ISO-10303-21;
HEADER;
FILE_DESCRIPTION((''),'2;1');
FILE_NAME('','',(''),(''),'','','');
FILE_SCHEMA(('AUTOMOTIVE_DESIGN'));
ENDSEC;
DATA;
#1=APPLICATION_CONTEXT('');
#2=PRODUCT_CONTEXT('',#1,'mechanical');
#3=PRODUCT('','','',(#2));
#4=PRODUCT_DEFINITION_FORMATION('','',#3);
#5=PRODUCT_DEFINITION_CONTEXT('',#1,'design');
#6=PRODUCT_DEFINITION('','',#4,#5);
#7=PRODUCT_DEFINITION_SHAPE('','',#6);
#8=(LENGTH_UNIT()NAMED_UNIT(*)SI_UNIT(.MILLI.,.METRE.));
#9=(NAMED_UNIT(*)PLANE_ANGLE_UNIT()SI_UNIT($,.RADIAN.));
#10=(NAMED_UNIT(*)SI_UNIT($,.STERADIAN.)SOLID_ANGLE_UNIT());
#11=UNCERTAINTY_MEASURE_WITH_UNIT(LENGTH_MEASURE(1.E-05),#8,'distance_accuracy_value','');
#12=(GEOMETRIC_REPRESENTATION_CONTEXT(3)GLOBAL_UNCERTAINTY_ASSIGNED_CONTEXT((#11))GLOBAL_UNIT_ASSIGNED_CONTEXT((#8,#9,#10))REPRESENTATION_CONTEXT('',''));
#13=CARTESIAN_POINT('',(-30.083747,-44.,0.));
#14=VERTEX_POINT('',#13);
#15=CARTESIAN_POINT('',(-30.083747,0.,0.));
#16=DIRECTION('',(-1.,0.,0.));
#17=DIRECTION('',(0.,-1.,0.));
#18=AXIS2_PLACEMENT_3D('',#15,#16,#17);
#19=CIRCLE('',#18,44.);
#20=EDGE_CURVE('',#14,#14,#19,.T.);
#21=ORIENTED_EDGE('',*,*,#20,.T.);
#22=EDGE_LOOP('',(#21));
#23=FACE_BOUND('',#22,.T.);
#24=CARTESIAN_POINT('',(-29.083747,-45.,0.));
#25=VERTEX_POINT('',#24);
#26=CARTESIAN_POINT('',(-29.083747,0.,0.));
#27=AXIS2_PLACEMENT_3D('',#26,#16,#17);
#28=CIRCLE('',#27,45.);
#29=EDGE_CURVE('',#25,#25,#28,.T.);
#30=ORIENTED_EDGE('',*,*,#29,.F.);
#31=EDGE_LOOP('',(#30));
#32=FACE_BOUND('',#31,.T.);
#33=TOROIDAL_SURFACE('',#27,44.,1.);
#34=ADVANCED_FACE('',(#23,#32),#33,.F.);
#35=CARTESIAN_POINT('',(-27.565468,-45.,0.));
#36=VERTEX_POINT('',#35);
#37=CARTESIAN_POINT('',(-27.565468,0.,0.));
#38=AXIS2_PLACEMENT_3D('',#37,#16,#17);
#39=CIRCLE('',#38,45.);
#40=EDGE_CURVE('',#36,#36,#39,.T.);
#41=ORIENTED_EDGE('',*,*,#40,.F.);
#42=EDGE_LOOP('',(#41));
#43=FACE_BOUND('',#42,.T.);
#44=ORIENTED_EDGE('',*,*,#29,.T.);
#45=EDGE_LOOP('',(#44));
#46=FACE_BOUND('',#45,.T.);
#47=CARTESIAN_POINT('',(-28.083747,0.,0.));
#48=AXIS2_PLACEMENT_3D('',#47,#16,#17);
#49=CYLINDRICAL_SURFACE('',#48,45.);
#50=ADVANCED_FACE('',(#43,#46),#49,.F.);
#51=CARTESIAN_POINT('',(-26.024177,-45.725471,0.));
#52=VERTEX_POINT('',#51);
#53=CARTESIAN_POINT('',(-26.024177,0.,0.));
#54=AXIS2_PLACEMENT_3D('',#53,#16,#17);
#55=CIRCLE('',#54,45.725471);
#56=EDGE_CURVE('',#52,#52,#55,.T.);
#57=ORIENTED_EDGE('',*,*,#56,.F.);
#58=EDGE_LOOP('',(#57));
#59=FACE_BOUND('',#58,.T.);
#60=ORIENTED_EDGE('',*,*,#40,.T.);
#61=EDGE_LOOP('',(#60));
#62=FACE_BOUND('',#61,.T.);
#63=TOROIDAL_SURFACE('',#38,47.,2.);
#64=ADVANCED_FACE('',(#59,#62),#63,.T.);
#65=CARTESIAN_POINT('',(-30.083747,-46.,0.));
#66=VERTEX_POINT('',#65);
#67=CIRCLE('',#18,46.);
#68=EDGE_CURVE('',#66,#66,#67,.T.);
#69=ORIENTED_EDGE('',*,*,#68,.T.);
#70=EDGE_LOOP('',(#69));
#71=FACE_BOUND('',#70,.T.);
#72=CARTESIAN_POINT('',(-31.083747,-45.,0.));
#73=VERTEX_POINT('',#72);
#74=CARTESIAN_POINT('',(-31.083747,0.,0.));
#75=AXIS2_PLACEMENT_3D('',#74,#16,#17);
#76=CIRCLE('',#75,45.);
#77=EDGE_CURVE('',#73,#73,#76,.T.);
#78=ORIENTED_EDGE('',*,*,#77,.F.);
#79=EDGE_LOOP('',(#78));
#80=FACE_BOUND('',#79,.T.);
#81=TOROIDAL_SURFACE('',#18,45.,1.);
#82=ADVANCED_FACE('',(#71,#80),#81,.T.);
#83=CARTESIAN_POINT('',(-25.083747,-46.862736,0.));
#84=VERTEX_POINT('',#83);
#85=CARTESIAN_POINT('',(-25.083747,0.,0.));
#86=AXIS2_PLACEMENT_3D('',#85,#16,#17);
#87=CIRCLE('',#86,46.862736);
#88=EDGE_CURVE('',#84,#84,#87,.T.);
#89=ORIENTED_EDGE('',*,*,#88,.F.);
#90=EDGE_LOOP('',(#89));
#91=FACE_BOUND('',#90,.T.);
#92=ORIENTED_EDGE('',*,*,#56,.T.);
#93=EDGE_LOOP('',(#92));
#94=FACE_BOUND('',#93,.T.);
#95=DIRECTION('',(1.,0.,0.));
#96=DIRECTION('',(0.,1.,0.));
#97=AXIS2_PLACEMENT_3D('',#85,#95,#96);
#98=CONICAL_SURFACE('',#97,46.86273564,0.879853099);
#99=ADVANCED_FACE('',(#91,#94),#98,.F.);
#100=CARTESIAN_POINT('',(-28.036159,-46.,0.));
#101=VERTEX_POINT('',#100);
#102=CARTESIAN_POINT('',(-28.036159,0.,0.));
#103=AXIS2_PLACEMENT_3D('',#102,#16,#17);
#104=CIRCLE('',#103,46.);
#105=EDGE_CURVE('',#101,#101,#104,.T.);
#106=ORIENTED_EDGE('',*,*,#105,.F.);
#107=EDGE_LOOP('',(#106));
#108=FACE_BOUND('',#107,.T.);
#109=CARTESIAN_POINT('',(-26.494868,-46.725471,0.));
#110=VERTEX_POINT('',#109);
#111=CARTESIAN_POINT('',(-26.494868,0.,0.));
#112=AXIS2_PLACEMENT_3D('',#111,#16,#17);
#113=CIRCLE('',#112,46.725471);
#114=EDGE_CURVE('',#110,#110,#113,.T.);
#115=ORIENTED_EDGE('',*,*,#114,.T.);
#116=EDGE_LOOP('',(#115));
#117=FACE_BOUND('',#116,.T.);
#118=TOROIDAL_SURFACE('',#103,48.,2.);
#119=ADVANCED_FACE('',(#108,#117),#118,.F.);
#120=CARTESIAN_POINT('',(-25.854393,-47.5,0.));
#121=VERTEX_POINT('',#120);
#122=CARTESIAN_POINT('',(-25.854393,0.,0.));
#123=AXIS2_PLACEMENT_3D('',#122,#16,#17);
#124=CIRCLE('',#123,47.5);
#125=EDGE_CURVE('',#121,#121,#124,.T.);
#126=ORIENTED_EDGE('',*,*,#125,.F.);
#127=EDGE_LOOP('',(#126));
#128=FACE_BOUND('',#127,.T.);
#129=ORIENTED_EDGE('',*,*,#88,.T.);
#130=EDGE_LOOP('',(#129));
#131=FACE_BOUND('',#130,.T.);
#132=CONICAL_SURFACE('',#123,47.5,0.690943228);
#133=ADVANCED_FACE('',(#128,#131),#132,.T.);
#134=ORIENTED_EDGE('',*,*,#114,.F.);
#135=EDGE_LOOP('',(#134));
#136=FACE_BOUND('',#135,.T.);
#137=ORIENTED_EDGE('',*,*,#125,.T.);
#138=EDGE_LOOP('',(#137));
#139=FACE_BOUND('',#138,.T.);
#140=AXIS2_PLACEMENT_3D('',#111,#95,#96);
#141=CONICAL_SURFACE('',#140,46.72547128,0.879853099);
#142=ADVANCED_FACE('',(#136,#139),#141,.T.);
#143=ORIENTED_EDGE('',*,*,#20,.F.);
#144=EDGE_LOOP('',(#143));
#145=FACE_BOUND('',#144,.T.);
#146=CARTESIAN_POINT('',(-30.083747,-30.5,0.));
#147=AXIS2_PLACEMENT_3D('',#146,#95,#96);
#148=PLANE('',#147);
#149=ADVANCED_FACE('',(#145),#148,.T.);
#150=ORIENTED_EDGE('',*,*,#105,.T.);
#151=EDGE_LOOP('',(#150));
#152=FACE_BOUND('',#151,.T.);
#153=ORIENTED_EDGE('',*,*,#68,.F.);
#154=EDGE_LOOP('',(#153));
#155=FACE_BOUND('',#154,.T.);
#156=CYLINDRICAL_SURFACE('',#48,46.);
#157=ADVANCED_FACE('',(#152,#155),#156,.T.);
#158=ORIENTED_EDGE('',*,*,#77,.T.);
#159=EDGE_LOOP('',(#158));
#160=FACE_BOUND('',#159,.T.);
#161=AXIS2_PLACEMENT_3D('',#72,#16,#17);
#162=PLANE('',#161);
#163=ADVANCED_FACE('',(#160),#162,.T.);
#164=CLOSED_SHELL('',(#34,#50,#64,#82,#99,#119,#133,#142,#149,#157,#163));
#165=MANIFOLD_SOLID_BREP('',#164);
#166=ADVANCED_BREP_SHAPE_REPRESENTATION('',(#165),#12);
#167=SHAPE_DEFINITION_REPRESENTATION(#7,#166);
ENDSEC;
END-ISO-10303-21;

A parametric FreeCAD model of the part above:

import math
import FreeCAD as App
import Part
import Sketcher

doc = App.newDocument("Part")
body = doc.addObject("PartDesign::Body", "Body")

# Sketch on XY plane
sketch1 = body.newObject("Sketcher::SketchObject", "Sketch")
sketch1.AttachmentSupport = (doc.getObject("XY_Plane"), [""])
sketch1.MapMode = "FlatFace"
sketch1.addGeometry([
    Part.LineSegment(App.Vector(-32.1, -28.5, 0), App.Vector(-38.1, -28.5, 0)),  # 0
    Part.ArcOfCircle(Part.Circle(App.Vector(-37.1, -28.5, 0), App.Vector(0, 0, 1), 1), math.radians(-180), math.radians(-90)),  # 1
    Part.LineSegment(App.Vector(-37.1, -29.5, 0), App.Vector(-33.1, -29.5, 0)),  # 2
    Part.ArcOfCircle(Part.Circle(App.Vector(-33.1, -31.5, 0), App.Vector(0, 0, 1), 2), math.radians(0), math.radians(90)),  # 3
    Part.LineSegment(App.Vector(-31.1, -31.5, 0), App.Vector(-31.1, -45, 0)),  # 4
    Part.ArcOfCircle(Part.Circle(App.Vector(-30.1, -45, 0), App.Vector(0, 0, 1), 1), math.radians(-180), math.radians(-90)),  # 5
    Part.LineSegment(App.Vector(-30.1, -46, 0), App.Vector(-28, -46, 0)),  # 6
    Part.ArcOfCircle(Part.Circle(App.Vector(-28, -48, 0), App.Vector(0, 0, 1), 2), math.radians(40), math.radians(90)),  # 7
    Part.LineSegment(App.Vector(-26.5, -46.7, 0), App.Vector(-25.9, -47.5, 0)),  # 8
    Part.LineSegment(App.Vector(-25.9, -47.5, 0), App.Vector(-25.1, -46.9, 0)),  # 9
    Part.LineSegment(App.Vector(-25.1, -46.9, 0), App.Vector(-26, -45.7, 0)),  # 10
    Part.ArcOfCircle(Part.Circle(App.Vector(-27.6, -47, 0), App.Vector(0, 0, 1), 2), math.radians(40), math.radians(90)),  # 11
    Part.LineSegment(App.Vector(-27.6, -45, 0), App.Vector(-29.1, -45, 0)),  # 12
    Part.ArcOfCircle(Part.Circle(App.Vector(-29.1, -44, 0), App.Vector(0, 0, 1), 1), math.radians(-180), math.radians(-90)),  # 13
    Part.LineSegment(App.Vector(-30.1, -44, 0), App.Vector(-30.1, -30.5, 0)),  # 14
    Part.ArcOfCircle(Part.Circle(App.Vector(-32.1, -30.5, 0), App.Vector(0, 0, 1), 2), math.radians(0), math.radians(90)),  # 15
], False)
sketch1.addConstraint([
    Sketcher.Constraint("Coincident", 0, 2, 1, 1),
    Sketcher.Constraint("Tangent", 1, 2, 2, 1),
    Sketcher.Constraint("Tangent", 2, 2, 3, 2),
    Sketcher.Constraint("Tangent", 3, 1, 4, 1),
    Sketcher.Constraint("Tangent", 4, 2, 5, 1),
    Sketcher.Constraint("Tangent", 5, 2, 6, 1),
    Sketcher.Constraint("Tangent", 6, 2, 7, 2),
    Sketcher.Constraint("Tangent", 7, 1, 8, 1),
    Sketcher.Constraint("Coincident", 8, 2, 9, 1),
    Sketcher.Constraint("Coincident", 9, 2, 10, 1),
    Sketcher.Constraint("Tangent", 10, 2, 11, 1),
    Sketcher.Constraint("Tangent", 11, 2, 12, 1),
    Sketcher.Constraint("Tangent", 12, 2, 13, 2),
    Sketcher.Constraint("Tangent", 13, 1, 14, 1),
    Sketcher.Constraint("Tangent", 14, 2, 15, 1),
    Sketcher.Constraint("Tangent", 15, 2, 0, 1),
    Sketcher.Constraint("Horizontal", 0),
    Sketcher.Constraint("Horizontal", 2),
    Sketcher.Constraint("Vertical", 4),
    Sketcher.Constraint("Horizontal", 6),
    Sketcher.Constraint("Horizontal", 12),
    Sketcher.Constraint("Vertical", 14),
    Sketcher.Constraint("Equal", 1, 5),
    Sketcher.Constraint("Equal", 3, 7),
    Sketcher.Constraint("Equal", 7, 11),
    Sketcher.Constraint("Equal", 5, 13),
    Sketcher.Constraint("Equal", 11, 15),
    Sketcher.Constraint("Perpendicular", 8, 9),
    Sketcher.Constraint("Perpendicular", 9, 10),
    Sketcher.Constraint("Horizontal", 1, 3, 0, 2),
    Sketcher.Constraint("Horizontal", 4, 2, 11, 2),
    Sketcher.Constraint("Vertical", 5, 2, 13, 1),
    Sketcher.Constraint("Radius", 1, 1.0),
    Sketcher.Constraint("Radius", 3, 2.0),
    Sketcher.Constraint("DistanceX", 0, 2, 0, 1, 6.0),
    Sketcher.Constraint("Distance", 9, 1.0),
    Sketcher.Constraint("DistanceY", 4, 2, 4, 1, 13.5),
    Sketcher.Constraint("DistanceY", 5, 3, -1, 1, 45.0),
    Sketcher.Constraint("DistanceY", 8, 2, -1, 1, 47.5),
    Sketcher.Constraint("DistanceX", 6, 1, 6, 2, 2.047589),
    Sketcher.Constraint("DistanceX", 12, 2, 12, 1, 1.518279),
    Sketcher.Constraint("DistanceX", 7, 3, -1, 1, 28.036159),
])
revolution = body.newObject("PartDesign::Revolution", "Revolution")
revolution.Profile = sketch1
revolution.ReferenceAxis = (sketch1, ["H_Axis"])
revolution.Angle = 360

# Sketch on YZ plane
sketch2 = body.newObject("Sketcher::SketchObject", "Sketch001")
sketch2.AttachmentSupport = (doc.getObject("YZ_Plane"), [""])
sketch2.MapMode = "FlatFace"
sketch2.AttachmentOffset = App.Placement(App.Vector(0, 0, -31.083747), App.Rotation())
sketch2.addGeometry(Part.Circle(App.Vector(0, 0, 0), App.Vector(0, 0, 1), 36), False)
sketch2.addConstraint([
    Sketcher.Constraint("Coincident", 0, 3, -1, 1),
    Sketcher.Constraint("Diameter", 0, 72.732801),
])
pocket1 = body.newObject("PartDesign::Pocket", "Pocket")
pocket1.Profile = sketch2
pocket1.Length = 16

# Sketch on YZ plane
sketch3 = body.newObject("Sketcher::SketchObject", "Sketch002")
sketch3.AttachmentSupport = (doc.getObject("YZ_Plane"), [""])
sketch3.MapMode = "FlatFace"
sketch3.AttachmentOffset = App.Placement(App.Vector(0, 0, -31.083747), App.Rotation())
sketch3.addGeometry(Part.Circle(App.Vector(0, 0, 0), App.Vector(0, 0, 1), 34), False)
sketch3.addConstraint([
    Sketcher.Constraint("Coincident", 0, 3, -1, 1),
    Sketcher.Constraint("Diameter", 0, 68.981626),
])
pad1 = body.newObject("PartDesign::Pad", "Pad")
pad1.Profile = sketch3
pad1.Length = 1

doc.recompute()
